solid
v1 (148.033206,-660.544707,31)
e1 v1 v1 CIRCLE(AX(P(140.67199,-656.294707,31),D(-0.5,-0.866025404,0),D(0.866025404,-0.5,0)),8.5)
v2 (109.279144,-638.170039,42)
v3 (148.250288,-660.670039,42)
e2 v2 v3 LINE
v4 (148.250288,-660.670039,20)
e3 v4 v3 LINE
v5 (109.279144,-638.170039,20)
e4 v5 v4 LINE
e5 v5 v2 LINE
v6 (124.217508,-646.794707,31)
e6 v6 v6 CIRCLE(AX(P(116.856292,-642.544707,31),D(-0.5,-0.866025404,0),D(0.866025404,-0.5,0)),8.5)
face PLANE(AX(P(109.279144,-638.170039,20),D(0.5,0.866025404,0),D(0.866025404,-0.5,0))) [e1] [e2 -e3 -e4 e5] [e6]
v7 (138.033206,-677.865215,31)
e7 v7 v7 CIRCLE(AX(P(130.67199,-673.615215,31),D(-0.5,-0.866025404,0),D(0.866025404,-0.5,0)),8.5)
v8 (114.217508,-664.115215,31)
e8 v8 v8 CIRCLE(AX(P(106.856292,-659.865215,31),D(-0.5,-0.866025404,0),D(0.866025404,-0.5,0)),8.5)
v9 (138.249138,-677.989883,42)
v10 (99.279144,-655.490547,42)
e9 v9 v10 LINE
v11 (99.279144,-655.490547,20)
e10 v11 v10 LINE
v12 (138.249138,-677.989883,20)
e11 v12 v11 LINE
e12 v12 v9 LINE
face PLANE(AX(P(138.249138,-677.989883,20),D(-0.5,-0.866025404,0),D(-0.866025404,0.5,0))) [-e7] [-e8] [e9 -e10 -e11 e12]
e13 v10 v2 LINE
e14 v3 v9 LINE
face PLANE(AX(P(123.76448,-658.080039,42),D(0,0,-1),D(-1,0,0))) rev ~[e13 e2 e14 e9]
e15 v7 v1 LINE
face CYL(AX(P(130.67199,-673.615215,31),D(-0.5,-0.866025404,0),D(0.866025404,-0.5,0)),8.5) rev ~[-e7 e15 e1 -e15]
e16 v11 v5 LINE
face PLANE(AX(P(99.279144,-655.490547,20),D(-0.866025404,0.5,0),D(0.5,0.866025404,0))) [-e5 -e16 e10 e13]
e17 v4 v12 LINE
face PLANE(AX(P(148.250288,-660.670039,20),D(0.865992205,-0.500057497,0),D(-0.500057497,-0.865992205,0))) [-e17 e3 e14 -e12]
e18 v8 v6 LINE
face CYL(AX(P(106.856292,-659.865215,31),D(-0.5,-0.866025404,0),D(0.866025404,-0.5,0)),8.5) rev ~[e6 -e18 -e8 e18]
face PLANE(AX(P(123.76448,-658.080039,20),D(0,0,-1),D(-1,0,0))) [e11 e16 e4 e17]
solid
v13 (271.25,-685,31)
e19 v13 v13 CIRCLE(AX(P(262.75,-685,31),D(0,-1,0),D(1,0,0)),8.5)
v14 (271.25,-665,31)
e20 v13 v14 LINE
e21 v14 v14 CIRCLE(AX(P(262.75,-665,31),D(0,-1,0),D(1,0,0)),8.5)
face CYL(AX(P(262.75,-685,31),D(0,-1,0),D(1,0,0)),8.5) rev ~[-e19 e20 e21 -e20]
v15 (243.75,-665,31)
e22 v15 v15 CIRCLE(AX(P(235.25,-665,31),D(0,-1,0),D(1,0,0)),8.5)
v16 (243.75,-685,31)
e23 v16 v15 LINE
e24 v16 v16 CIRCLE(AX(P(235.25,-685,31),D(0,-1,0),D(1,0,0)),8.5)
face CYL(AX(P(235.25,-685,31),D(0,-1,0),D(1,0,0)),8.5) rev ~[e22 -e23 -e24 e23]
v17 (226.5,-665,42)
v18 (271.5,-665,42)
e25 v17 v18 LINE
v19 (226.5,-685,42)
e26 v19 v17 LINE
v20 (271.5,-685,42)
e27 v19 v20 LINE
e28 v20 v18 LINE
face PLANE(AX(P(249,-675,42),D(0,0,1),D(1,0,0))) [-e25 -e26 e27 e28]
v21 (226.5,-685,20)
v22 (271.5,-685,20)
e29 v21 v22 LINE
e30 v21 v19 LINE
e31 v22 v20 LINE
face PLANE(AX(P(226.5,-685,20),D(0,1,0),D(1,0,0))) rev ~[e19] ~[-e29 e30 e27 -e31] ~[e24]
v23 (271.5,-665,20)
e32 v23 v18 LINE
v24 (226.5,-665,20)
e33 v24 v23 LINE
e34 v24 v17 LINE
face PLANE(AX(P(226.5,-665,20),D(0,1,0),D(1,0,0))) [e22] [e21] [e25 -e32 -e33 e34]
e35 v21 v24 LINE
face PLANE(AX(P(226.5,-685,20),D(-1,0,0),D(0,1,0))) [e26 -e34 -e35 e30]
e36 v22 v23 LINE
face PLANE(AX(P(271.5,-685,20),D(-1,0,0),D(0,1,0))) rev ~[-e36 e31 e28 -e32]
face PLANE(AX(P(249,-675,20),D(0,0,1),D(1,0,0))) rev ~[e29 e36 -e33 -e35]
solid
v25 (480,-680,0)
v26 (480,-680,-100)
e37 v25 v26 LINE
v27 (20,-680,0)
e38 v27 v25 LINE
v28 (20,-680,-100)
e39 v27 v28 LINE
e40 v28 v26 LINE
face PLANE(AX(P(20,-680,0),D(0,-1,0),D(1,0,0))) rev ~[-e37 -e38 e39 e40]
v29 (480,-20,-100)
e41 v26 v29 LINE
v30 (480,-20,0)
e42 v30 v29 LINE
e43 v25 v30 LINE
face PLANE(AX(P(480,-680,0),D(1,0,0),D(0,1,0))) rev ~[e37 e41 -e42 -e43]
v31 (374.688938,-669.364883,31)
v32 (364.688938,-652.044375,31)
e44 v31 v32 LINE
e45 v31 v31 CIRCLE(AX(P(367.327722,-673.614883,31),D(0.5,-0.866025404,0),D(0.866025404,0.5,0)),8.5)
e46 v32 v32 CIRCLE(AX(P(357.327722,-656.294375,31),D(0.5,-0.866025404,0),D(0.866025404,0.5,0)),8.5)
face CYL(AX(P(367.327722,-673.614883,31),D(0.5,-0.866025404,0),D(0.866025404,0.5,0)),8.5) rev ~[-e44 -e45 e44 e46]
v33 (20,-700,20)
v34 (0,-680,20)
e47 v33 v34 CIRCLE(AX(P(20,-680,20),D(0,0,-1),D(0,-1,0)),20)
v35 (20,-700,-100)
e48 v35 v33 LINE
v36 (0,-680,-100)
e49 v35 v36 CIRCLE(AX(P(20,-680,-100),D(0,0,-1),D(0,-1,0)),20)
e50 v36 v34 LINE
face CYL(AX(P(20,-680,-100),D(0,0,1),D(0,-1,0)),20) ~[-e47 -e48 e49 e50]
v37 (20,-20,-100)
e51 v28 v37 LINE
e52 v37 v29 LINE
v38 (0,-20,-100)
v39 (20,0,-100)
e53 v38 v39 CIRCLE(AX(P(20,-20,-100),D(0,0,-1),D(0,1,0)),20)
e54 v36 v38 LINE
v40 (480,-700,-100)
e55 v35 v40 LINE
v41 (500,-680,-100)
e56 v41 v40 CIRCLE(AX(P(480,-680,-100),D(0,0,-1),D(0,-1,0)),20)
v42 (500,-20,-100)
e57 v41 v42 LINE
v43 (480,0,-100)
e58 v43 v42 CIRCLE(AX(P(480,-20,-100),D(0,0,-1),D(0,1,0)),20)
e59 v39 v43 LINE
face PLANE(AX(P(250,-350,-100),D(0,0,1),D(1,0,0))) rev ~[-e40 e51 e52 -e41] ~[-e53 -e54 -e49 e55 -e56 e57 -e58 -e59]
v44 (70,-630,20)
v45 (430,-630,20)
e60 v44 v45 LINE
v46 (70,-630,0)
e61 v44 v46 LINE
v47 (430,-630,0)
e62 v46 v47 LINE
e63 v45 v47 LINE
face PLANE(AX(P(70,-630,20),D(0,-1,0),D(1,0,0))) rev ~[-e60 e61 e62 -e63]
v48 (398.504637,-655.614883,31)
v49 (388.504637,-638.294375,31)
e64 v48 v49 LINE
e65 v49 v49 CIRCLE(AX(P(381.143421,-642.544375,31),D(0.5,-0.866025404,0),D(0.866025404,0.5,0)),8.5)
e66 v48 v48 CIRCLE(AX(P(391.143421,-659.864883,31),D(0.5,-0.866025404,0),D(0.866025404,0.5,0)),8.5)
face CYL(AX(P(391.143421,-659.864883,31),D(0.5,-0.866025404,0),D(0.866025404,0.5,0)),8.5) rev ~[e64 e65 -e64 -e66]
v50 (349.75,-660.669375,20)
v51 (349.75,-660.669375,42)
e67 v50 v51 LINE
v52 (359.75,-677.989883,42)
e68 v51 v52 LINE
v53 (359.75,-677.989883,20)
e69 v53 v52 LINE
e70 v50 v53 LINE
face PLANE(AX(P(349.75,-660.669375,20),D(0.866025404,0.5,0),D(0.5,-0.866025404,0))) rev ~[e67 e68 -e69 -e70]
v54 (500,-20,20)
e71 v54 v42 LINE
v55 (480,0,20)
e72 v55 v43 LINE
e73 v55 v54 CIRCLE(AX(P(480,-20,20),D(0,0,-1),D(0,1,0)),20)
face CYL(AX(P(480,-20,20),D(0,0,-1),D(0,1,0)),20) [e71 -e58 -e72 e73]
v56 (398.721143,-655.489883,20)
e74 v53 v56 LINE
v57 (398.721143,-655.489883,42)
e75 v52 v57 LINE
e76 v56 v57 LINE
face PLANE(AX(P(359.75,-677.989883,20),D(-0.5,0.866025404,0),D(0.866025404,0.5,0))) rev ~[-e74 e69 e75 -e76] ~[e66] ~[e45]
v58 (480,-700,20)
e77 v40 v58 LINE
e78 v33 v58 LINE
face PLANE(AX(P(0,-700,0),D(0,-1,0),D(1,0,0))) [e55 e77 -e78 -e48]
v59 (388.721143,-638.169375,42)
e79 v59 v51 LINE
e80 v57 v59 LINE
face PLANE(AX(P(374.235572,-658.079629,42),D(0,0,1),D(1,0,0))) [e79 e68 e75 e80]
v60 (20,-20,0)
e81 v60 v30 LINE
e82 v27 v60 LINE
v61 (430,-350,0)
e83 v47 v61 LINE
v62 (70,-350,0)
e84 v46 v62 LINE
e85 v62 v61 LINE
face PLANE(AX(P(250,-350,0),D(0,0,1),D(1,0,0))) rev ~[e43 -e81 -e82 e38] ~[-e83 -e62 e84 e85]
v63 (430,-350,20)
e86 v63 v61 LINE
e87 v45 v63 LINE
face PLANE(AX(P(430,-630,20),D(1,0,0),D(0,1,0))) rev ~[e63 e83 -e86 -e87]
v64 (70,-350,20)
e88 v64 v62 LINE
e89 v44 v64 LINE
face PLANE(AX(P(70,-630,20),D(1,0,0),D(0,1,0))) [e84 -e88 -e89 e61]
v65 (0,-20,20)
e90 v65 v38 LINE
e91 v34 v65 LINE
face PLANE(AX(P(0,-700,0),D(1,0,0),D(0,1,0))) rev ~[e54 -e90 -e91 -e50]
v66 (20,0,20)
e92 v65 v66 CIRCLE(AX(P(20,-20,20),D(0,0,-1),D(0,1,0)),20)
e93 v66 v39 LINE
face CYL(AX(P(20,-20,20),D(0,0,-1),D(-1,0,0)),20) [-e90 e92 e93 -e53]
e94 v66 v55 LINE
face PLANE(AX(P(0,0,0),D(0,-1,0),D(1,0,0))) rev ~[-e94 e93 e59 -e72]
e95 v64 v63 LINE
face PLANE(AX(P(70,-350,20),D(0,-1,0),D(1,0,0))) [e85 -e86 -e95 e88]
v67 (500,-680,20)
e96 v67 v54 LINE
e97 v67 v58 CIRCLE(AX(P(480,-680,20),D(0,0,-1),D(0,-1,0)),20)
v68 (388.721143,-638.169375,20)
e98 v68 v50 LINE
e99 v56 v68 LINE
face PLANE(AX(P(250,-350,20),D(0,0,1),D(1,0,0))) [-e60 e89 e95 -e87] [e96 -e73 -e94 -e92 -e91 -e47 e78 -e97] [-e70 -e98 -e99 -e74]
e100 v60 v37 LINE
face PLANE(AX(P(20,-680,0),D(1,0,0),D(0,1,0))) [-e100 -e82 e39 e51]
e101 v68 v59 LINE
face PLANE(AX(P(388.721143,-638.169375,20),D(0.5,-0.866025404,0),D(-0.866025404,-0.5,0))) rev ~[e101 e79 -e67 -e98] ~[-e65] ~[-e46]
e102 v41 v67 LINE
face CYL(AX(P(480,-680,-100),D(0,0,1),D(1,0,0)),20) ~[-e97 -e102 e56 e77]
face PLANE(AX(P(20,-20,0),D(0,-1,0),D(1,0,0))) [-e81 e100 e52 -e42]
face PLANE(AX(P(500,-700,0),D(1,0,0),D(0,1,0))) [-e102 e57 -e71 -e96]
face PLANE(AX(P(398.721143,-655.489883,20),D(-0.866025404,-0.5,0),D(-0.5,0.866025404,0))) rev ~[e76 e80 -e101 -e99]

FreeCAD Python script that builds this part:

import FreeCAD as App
import Part
import Sketcher
from FreeCAD import Vector
Q = App.Units.Quantity


def edges_at(feature, points):
    """Names of the edges that pass closest to the given points."""
    edges = feature.Shape.Edges
    near = lambda p: min(range(len(edges)), key=lambda i: edges[i].distToShape(Part.Vertex(*p))[0])
    return sorted({f"Edge{near(p) + 1}" for p in points})

doc = App.newDocument("Part")
body = doc.addObject("PartDesign::Body", "Body")

sketch1 = body.newObject("Sketcher::SketchObject", "Sketch")
sketch1.AttachmentSupport = (doc.getObject("XY_Plane"), [""])
sketch1.MapMode = "FlatFace"
sketch1.addGeometry(Part.LineSegment(Vector(0, 0, 0), Vector(0, -700, 0)), False)
sketch1.addGeometry(Part.LineSegment(Vector(0, -700, 0), Vector(500, -700, 0)), False)
sketch1.addGeometry(Part.LineSegment(Vector(500, -700, 0), Vector(500, 0, 0)), False)
sketch1.addGeometry(Part.LineSegment(Vector(500, 0, 0), Vector(0, 0, 0)), False)
sketch1.addConstraint(Sketcher.Constraint("Coincident", 0, 2, 1, 1))
sketch1.addConstraint(Sketcher.Constraint("Coincident", 1, 2, 2, 1))
sketch1.addConstraint(Sketcher.Constraint("Coincident", 2, 2, 3, 1))
sketch1.addConstraint(Sketcher.Constraint("Coincident", 3, 2, 0, 1))
sketch1.addConstraint(Sketcher.Constraint("Vertical", 0))
sketch1.addConstraint(Sketcher.Constraint("Horizontal", 1))
sketch1.addConstraint(Sketcher.Constraint("Vertical", 2))
sketch1.addConstraint(Sketcher.Constraint("Horizontal", 3))
sketch1.addConstraint(Sketcher.Constraint("Coincident", 3, 2, -1, 1))
sketch1.addConstraint(Sketcher.Constraint("DistanceX", 1, 1, 1, 2, Q("500 mm")))
sketch1.addConstraint(Sketcher.Constraint("DistanceY", 0, 2, 0, 1, Q("700 mm")))
pad1 = body.newObject("PartDesign::Pad", "Pad")
pad1.Profile = sketch1
pad1.Length = 20

sketch2 = body.newObject("Sketcher::SketchObject", "Sketch001")
sketch2.AttachmentSupport = (doc.getObject("XY_Plane"), [""])
sketch2.MapMode = "FlatFace"
sketch2.addGeometry(Part.LineSegment(Vector(0, 0, 0), Vector(0, -700, 0)), False)
sketch2.addGeometry(Part.LineSegment(Vector(0, -700, 0), Vector(500, -700, 0)), False)
sketch2.addGeometry(Part.LineSegment(Vector(500, -700, 0), Vector(500, 0, 0)), False)
sketch2.addGeometry(Part.LineSegment(Vector(500, 0, 0), Vector(0, 0, 0)), False)
sketch2.addGeometry(Part.LineSegment(Vector(480, -680, 0), Vector(20, -680, 0)), False)
sketch2.addGeometry(Part.LineSegment(Vector(20, -680, 0), Vector(20, -20, 0)), False)
sketch2.addGeometry(Part.LineSegment(Vector(20, -20, 0), Vector(480, -20, 0)), False)
sketch2.addGeometry(Part.LineSegment(Vector(480, -20, 0), Vector(480, -680, 0)), False)
sketch2.addConstraint(Sketcher.Constraint("Coincident", 0, 2, 1, 1))
sketch2.addConstraint(Sketcher.Constraint("Coincident", 1, 2, 2, 1))
sketch2.addConstraint(Sketcher.Constraint("Coincident", 2, 2, 3, 1))
sketch2.addConstraint(Sketcher.Constraint("Coincident", 3, 2, 0, 1))
sketch2.addConstraint(Sketcher.Constraint("Coincident", 4, 2, 5, 1))
sketch2.addConstraint(Sketcher.Constraint("Coincident", 5, 2, 6, 1))
sketch2.addConstraint(Sketcher.Constraint("Coincident", 6, 2, 7, 1))
sketch2.addConstraint(Sketcher.Constraint("Coincident", 7, 2, 4, 1))
sketch2.addConstraint(Sketcher.Constraint("Vertical", 0))
sketch2.addConstraint(Sketcher.Constraint("Horizontal", 1))
sketch2.addConstraint(Sketcher.Constraint("Vertical", 2))
sketch2.addConstraint(Sketcher.Constraint("Horizontal", 3))
sketch2.addConstraint(Sketcher.Constraint("Horizontal", 4))
sketch2.addConstraint(Sketcher.Constraint("Vertical", 5))
sketch2.addConstraint(Sketcher.Constraint("Horizontal", 6))
sketch2.addConstraint(Sketcher.Constraint("Vertical", 7))
sketch2.addConstraint(Sketcher.Constraint("Coincident", 3, 2, -1, 1))
sketch2.addConstraint(Sketcher.Constraint("DistanceX", 1, 1, 1, 2, Q("500 mm")))
sketch2.addConstraint(Sketcher.Constraint("DistanceX", 4, 2, 4, 1, Q("460 mm")))
sketch2.addConstraint(Sketcher.Constraint("DistanceY", 0, 2, 0, 1, Q("700 mm")))
sketch2.addConstraint(Sketcher.Constraint("DistanceY", 5, 1, 5, 2, Q("660 mm")))
sketch2.addConstraint(Sketcher.Constraint("DistanceX", -1, 1, 4, 2, Q("20 mm")))
sketch2.addConstraint(Sketcher.Constraint("DistanceY", 4, 2, -1, 1, Q("680 mm")))
pad2 = body.newObject("PartDesign::Pad", "Pad001")
pad2.Profile = sketch2
pad2.Length = 100
pad2.Reversed = True

sketch3 = body.newObject("Sketcher::SketchObject", "Sketch002")
sketch3.AttachmentSupport = (doc.getObject("XY_Plane"), [""])
sketch3.MapMode = "FlatFace"
sketch3.AttachmentOffset = App.Placement(Vector(0, 0, 20), App.Rotation())
sketch3.addGeometry(Part.LineSegment(Vector(360, -678, 0), Vector(399, -655, 0)), False)
sketch3.addGeometry(Part.LineSegment(Vector(399, -655, 0), Vector(389, -638, 0)), False)
sketch3.addGeometry(Part.LineSegment(Vector(389, -638, 0), Vector(350, -661, 0)), False)
sketch3.addGeometry(Part.LineSegment(Vector(350, -661, 0), Vector(360, -678, 0)), False)
sketch3.addConstraint(Sketcher.Constraint("Coincident", 0, 2, 1, 1))
sketch3.addConstraint(Sketcher.Constraint("Coincident", 1, 2, 2, 1))
sketch3.addConstraint(Sketcher.Constraint("Coincident", 2, 2, 3, 1))
sketch3.addConstraint(Sketcher.Constraint("Coincident", 3, 2, 0, 1))
sketch3.addConstraint(Sketcher.Constraint("Perpendicular", 0, 1))
sketch3.addConstraint(Sketcher.Constraint("Perpendicular", 1, 2))
sketch3.addConstraint(Sketcher.Constraint("Perpendicular", 2, 3))
sketch3.addConstraint(Sketcher.Constraint("Angle", 0, Q("30 deg")))
sketch3.addConstraint(Sketcher.Constraint("Distance", 0, Q("45 mm")))
sketch3.addConstraint(Sketcher.Constraint("Distance", 1, Q("20 mm")))
sketch3.addConstraint(Sketcher.Constraint("DistanceX", -1, 1, 2, 2, Q("349.75 mm")))
sketch3.addConstraint(Sketcher.Constraint("DistanceY", 0, 2, -1, 1, Q("655.489883 mm")))
pad3 = body.newObject("PartDesign::Pad", "Pad002")
pad3.Profile = sketch3
pad3.Length = 22

sketch4 = body.newObject("Sketcher::SketchObject", "Sketch003")
sketch4.Placement = App.Placement(Vector(383.515731, -664.268732, 0), App.Rotation(Vector(0.866025404, 0.5, 0), Vector(0, 0, 1), Vector(0.5, -0.866025404, 0), "ZXY"))
sketch4.addGeometry(Part.Circle(Vector(-19, 31, 0), Vector(0, 0, 1), 8), False)
sketch4.addGeometry(Part.Circle(Vector(9, 31, 0), Vector(0, 0, 1), 8), False)
sketch4.addConstraint(Sketcher.Constraint("Equal", 0, 1))
sketch4.addConstraint(Sketcher.Constraint("Horizontal", 0, 3, 1, 3))
sketch4.addConstraint(Sketcher.Constraint("Diameter", 0, Q("17 mm")))
sketch4.addConstraint(Sketcher.Constraint("DistanceY", -1, 1, 0, 3, Q("31 mm")))
sketch4.addConstraint(Sketcher.Constraint("DistanceX", 0, 3, 1, 3, Q("27.5 mm")))
sketch4.addConstraint(Sketcher.Constraint("DistanceX", 0, 3, -1, 1, Q("18.692303 mm")))
pocket1 = body.newObject("PartDesign::Pocket", "Pocket")
pocket1.Profile = sketch4
pocket1.Length = 22

sketch5 = body.newObject("Sketcher::SketchObject", "Sketch004")
sketch5.AttachmentSupport = (doc.getObject("XY_Plane"), [""])
sketch5.MapMode = "FlatFace"
sketch5.AttachmentOffset = App.Placement(Vector(0, 0, 20), App.Rotation())
sketch5.addGeometry(Part.LineSegment(Vector(70, -350, 0), Vector(70, -630, 0)), False)
sketch5.addGeometry(Part.LineSegment(Vector(70, -630, 0), Vector(430, -630, 0)), False)
sketch5.addGeometry(Part.LineSegment(Vector(430, -630, 0), Vector(430, -350, 0)), False)
sketch5.addGeometry(Part.LineSegment(Vector(430, -350, 0), Vector(70, -350, 0)), False)
sketch5.addConstraint(Sketcher.Constraint("Coincident", 0, 2, 1, 1))
sketch5.addConstraint(Sketcher.Constraint("Coincident", 1, 2, 2, 1))
sketch5.addConstraint(Sketcher.Constraint("Coincident", 2, 2, 3, 1))
sketch5.addConstraint(Sketcher.Constraint("Coincident", 3, 2, 0, 1))
sketch5.addConstraint(Sketcher.Constraint("Vertical", 0))
sketch5.addConstraint(Sketcher.Constraint("Horizontal", 1))
sketch5.addConstraint(Sketcher.Constraint("Vertical", 2))
sketch5.addConstraint(Sketcher.Constraint("Horizontal", 3))
sketch5.addConstraint(Sketcher.Constraint("DistanceX", 1, 1, 1, 2, Q("360 mm")))
sketch5.addConstraint(Sketcher.Constraint("DistanceY", 0, 2, 0, 1, Q("280 mm")))
sketch5.addConstraint(Sketcher.Constraint("DistanceX", -1, 1, 0, 2, Q("70 mm")))
sketch5.addConstraint(Sketcher.Constraint("DistanceY", 0, 2, -1, 1, Q("630 mm")))
pocket2 = body.newObject("PartDesign::Pocket", "Pocket001")
pocket2.Profile = sketch5
pocket2.Length = 22
doc.recompute()

fillet = body.newObject("PartDesign::Fillet", "Fillet")
fillet.Base = (pocket2, edges_at(pocket2, [(0, 0, -40)]))
fillet.Radius = 20
doc.recompute()

fillet2 = body.newObject("PartDesign::Fillet", "Fillet001")
fillet2.Base = (fillet, edges_at(fillet, [(500, 0, -40)]))
fillet2.Radius = 20
doc.recompute()

fillet3 = body.newObject("PartDesign::Fillet", "Fillet002")
fillet3.Base = (fillet2, edges_at(fillet2, [(500, -700, -40)]))
fillet3.Radius = 20
doc.recompute()

fillet4 = body.newObject("PartDesign::Fillet", "Fillet003")
fillet4.Base = (fillet3, edges_at(fillet3, [(0, -700, -40)]))
fillet4.Radius = 20
body2 = doc.addObject("PartDesign::Body", "Body001")

sketch6 = body2.newObject("Sketcher::SketchObject", "Sketch005")
sketch6.AttachmentSupport = (doc.getObject("XY_Plane001"), [""])
sketch6.MapMode = "FlatFace"
sketch6.AttachmentOffset = App.Placement(Vector(0, 0, 20), App.Rotation())
sketch6.addGeometry(Part.LineSegment(Vector(138, -678, 0), Vector(148, -661, 0)), False)
sketch6.addGeometry(Part.LineSegment(Vector(148, -661, 0), Vector(109, -638, 0)), False)
sketch6.addGeometry(Part.LineSegment(Vector(109, -638, 0), Vector(99, -655, 0)), False)
sketch6.addGeometry(Part.LineSegment(Vector(99, -655, 0), Vector(138, -678, 0)), False)
sketch6.addConstraint(Sketcher.Constraint("Coincident", 0, 2, 1, 1))
sketch6.addConstraint(Sketcher.Constraint("Coincident", 1, 2, 2, 1))
sketch6.addConstraint(Sketcher.Constraint("Coincident", 2, 2, 3, 1))
sketch6.addConstraint(Sketcher.Constraint("Coincident", 3, 2, 0, 1))
sketch6.addConstraint(Sketcher.Constraint("Perpendicular", 1, 2))
sketch6.addConstraint(Sketcher.Constraint("Perpendicular", 2, 3))
sketch6.addConstraint(Sketcher.Constraint("Angle", 1, Q("150 deg")))
sketch6.addConstraint(Sketcher.Constraint("Distance", 0, Q("20 mm")))
sketch6.addConstraint(Sketcher.Constraint("Distance", 1, Q("45 mm")))
sketch6.addConstraint(Sketcher.Constraint("DistanceY", 0, 2, -1, 1, Q("660.670039 mm")))
sketch6.addConstraint(Sketcher.Constraint("DistanceX", 3, 2, 0, 2, Q("10.00115 mm")))
sketch6.addConstraint(Sketcher.Constraint("DistanceX", -1, 1, 0, 2, Q("148.250288 mm")))
pad4 = body2.newObject("PartDesign::Pad", "Pad003")
pad4.Profile = sketch6
pad4.Length = 22

sketch7 = body2.newObject("Sketcher::SketchObject", "Sketch006")
sketch7.Placement = App.Placement(Vector(-259.015947, -448.62878, 0), App.Rotation(Vector(0.866025404, -0.5, 0), Vector(0, 0, 1), Vector(-0.5, -0.866025404, 0), "ZXY"))
sketch7.addGeometry(Part.Circle(Vector(422, 31, 0), Vector(0, 0, 1), 8), False)
sketch7.addGeometry(Part.Circle(Vector(450, 31, 0), Vector(0, 0, 1), 8), False)
sketch7.addConstraint(Sketcher.Constraint("Equal", 0, 1))
sketch7.addConstraint(Sketcher.Constraint("Horizontal", 0, 3, 1, 3))
sketch7.addConstraint(Sketcher.Constraint("Diameter", 0, Q("17 mm")))
sketch7.addConstraint(Sketcher.Constraint("DistanceY", -1, 1, 0, 3, Q("31 mm")))
sketch7.addConstraint(Sketcher.Constraint("DistanceX", 0, 3, 1, 3, Q("27.5 mm")))
sketch7.addConstraint(Sketcher.Constraint("DistanceX", -1, 1, 0, 3, Q("422.472871 mm")))
pocket3 = body2.newObject("PartDesign::Pocket", "Pocket002")
pocket3.Profile = sketch7
pocket3.Length = 22
body3 = doc.addObject("PartDesign::Body", "Body002")

sketch8 = body3.newObject("Sketcher::SketchObject", "Sketch007")
sketch8.AttachmentSupport = (doc.getObject("XY_Plane002"), [""])
sketch8.MapMode = "FlatFace"
sketch8.AttachmentOffset = App.Placement(Vector(0, 0, 20), App.Rotation())
sketch8.addGeometry(Part.LineSegment(Vector(226, -665, 0), Vector(226, -685, 0)), False)
sketch8.addGeometry(Part.LineSegment(Vector(226, -685, 0), Vector(272, -685, 0)), False)
sketch8.addGeometry(Part.LineSegment(Vector(272, -685, 0), Vector(272, -665, 0)), False)
sketch8.addGeometry(Part.LineSegment(Vector(272, -665, 0), Vector(226, -665, 0)), False)
sketch8.addConstraint(Sketcher.Constraint("Coincident", 0, 2, 1, 1))
sketch8.addConstraint(Sketcher.Constraint("Coincident", 1, 2, 2, 1))
sketch8.addConstraint(Sketcher.Constraint("Coincident", 2, 2, 3, 1))
sketch8.addConstraint(Sketcher.Constraint("Coincident", 3, 2, 0, 1))
sketch8.addConstraint(Sketcher.Constraint("Vertical", 0))
sketch8.addConstraint(Sketcher.Constraint("Horizontal", 1))
sketch8.addConstraint(Sketcher.Constraint("Vertical", 2))
sketch8.addConstraint(Sketcher.Constraint("Horizontal", 3))
sketch8.addConstraint(Sketcher.Constraint("DistanceX", 1, 1, 1, 2, Q("45 mm")))
sketch8.addConstraint(Sketcher.Constraint("DistanceY", 0, 2, 0, 1, Q("20 mm")))
sketch8.addConstraint(Sketcher.Constraint("DistanceY", 0, 2, -1, 1, Q("685 mm")))
sketch8.addConstraint(Sketcher.Constraint("DistanceX", -1, 1, 0, 2, Q("226.5 mm")))
pad5 = body3.newObject("PartDesign::Pad", "Pad004")
pad5.Profile = sketch8
pad5.Length = 22

sketch9 = body3.newObject("Sketcher::SketchObject", "Sketch008")
sketch9.AttachmentSupport = (doc.getObject("XZ_Plane002"), [""])
sketch9.MapMode = "FlatFace"
sketch9.AttachmentOffset = App.Placement(Vector(0, 0, 685), App.Rotation())
sketch9.addGeometry(Part.Circle(Vector(235, 31, 0), Vector(0, 0, 1), 8), False)
sketch9.addGeometry(Part.Circle(Vector(263, 31, 0), Vector(0, 0, 1), 8), False)
sketch9.addConstraint(Sketcher.Constraint("Equal", 0, 1))
sketch9.addConstraint(Sketcher.Constraint("Horizontal", 0, 3, 1, 3))
sketch9.addConstraint(Sketcher.Constraint("Diameter", 0, Q("17 mm")))
sketch9.addConstraint(Sketcher.Constraint("DistanceY", -1, 1, 0, 3, Q("31 mm")))
sketch9.addConstraint(Sketcher.Constraint("DistanceX", 0, 3, 1, 3, Q("27.5 mm")))
sketch9.addConstraint(Sketcher.Constraint("DistanceX", -1, 1, 0, 3, Q("235.25 mm")))
pocket4 = body3.newObject("PartDesign::Pocket", "Pocket003")
pocket4.Profile = sketch9
pocket4.Length = 22

doc.recompute()
